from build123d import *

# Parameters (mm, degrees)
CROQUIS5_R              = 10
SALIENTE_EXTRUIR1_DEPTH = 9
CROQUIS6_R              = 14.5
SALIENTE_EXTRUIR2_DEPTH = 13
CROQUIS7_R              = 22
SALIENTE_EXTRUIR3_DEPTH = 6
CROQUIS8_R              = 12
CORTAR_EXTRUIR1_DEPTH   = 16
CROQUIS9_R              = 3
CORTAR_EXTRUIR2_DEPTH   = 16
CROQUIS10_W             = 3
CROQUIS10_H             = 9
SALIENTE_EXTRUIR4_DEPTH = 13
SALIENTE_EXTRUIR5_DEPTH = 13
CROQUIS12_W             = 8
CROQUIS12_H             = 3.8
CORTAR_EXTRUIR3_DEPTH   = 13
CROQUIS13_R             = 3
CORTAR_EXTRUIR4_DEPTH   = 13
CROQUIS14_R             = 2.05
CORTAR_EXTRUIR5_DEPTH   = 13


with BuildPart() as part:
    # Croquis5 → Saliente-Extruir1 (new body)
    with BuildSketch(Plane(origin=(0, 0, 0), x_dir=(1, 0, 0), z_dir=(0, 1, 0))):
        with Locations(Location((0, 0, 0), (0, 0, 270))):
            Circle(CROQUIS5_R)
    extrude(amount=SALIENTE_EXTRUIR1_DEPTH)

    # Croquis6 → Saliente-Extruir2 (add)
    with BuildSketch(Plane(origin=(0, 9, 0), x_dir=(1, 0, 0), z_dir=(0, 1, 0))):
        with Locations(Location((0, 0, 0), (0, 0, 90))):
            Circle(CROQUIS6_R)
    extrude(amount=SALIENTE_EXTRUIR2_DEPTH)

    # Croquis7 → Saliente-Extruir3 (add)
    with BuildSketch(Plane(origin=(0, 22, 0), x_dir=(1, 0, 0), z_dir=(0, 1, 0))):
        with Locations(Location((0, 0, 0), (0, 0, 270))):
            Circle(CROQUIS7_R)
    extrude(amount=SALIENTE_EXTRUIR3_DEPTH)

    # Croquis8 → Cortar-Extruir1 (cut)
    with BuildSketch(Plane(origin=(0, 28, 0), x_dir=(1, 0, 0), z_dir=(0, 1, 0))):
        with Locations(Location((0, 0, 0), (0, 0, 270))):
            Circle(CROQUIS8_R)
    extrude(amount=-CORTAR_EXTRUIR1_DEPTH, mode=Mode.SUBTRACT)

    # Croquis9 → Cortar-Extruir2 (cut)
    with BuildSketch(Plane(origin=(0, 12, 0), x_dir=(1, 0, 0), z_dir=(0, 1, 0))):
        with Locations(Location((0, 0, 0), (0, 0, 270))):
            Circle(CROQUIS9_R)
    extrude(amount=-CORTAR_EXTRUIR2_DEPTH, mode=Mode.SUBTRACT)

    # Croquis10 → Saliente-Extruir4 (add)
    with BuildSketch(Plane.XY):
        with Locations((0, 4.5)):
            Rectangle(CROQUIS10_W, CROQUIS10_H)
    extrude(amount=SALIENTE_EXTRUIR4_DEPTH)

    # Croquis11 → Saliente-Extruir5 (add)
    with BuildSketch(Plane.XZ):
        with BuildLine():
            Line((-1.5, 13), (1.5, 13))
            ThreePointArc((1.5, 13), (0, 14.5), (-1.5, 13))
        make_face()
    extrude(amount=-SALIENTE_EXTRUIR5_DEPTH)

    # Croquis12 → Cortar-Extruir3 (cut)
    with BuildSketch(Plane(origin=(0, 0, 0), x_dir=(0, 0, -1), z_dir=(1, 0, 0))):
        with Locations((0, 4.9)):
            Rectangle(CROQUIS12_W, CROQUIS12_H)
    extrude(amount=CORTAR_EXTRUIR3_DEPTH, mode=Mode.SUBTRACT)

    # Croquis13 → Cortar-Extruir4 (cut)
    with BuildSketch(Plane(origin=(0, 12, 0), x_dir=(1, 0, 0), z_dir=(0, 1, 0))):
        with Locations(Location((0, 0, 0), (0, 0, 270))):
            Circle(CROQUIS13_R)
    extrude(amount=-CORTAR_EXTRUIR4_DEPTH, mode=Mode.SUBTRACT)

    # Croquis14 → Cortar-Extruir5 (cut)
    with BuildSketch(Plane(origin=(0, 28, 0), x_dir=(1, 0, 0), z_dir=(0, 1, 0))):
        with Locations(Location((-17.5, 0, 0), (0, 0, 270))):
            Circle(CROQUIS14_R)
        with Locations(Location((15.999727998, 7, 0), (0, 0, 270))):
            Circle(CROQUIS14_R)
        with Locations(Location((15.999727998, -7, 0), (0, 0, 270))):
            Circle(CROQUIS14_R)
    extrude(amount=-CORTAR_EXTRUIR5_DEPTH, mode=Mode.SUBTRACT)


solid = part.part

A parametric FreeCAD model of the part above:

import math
import FreeCAD as App
import Part
import Sketcher
from FreeCAD import Vector


def add_polygon(sketch, points):
    """Adds a closed chain of lines whose ends are joined by coincident constraints."""
    first, n = sketch.GeometryCount, len(points)
    for a, b in zip(points, points[1:] + points[:1]):
        sketch.addGeometry(Part.LineSegment(App.Vector(*a, 0), App.Vector(*b, 0)), False)
    for i in range(n):
        sketch.addConstraint(Sketcher.Constraint("Coincident", first + i, 2, first + (i + 1) % n, 1))

doc = App.newDocument("Part")
body = doc.addObject("PartDesign::Body", "Body")

sketch1 = body.newObject("Sketcher::SketchObject", "Sketch")
sketch1.AttachmentSupport = (doc.getObject("XZ_Plane"), [""])
sketch1.MapMode = "FlatFace"
sketch1.addGeometry(Part.Circle(Vector(0, 0, 0), Vector(0, 0, 1), 10), False)
sketch1.addConstraint(Sketcher.Constraint("Coincident", 0, 3, -1, 1))
sketch1.addConstraint(Sketcher.Constraint("Diameter", 0, 20.0))
pad1 = body.newObject("PartDesign::Pad", "Pad")
pad1.Profile = sketch1
pad1.Length = 9
pad1.Reversed = True

sketch2 = body.newObject("Sketcher::SketchObject", "Sketch001")
sketch2.AttachmentSupport = (doc.getObject("XZ_Plane"), [""])
sketch2.MapMode = "FlatFace"
sketch2.AttachmentOffset = App.Placement(Vector(0, 0, -9), App.Rotation())
sketch2.addGeometry(Part.Circle(Vector(0, 0, 0), Vector(0, 0, 1), 14), False)
sketch2.addConstraint(Sketcher.Constraint("Coincident", 0, 3, -1, 1))
sketch2.addConstraint(Sketcher.Constraint("Diameter", 0, 29.0))
pad2 = body.newObject("PartDesign::Pad", "Pad001")
pad2.Profile = sketch2
pad2.Length = 13
pad2.Reversed = True

sketch3 = body.newObject("Sketcher::SketchObject", "Sketch002")
sketch3.AttachmentSupport = (doc.getObject("XZ_Plane"), [""])
sketch3.MapMode = "FlatFace"
sketch3.AttachmentOffset = App.Placement(Vector(0, 0, -22), App.Rotation())
sketch3.addGeometry(Part.Circle(Vector(0, 0, 0), Vector(0, 0, 1), 22), False)
sketch3.addConstraint(Sketcher.Constraint("Coincident", 0, 3, -1, 1))
sketch3.addConstraint(Sketcher.Constraint("Diameter", 0, 44.0))
pad3 = body.newObject("PartDesign::Pad", "Pad002")
pad3.Profile = sketch3
pad3.Length = 6
pad3.Reversed = True

sketch4 = body.newObject("Sketcher::SketchObject", "Sketch003")
sketch4.AttachmentSupport = (doc.getObject("XZ_Plane"), [""])
sketch4.MapMode = "FlatFace"
sketch4.AttachmentOffset = App.Placement(Vector(0, 0, -28), App.Rotation())
sketch4.addGeometry(Part.Circle(Vector(0, 0, 0), Vector(0, 0, 1), 12), False)
sketch4.addConstraint(Sketcher.Constraint("Coincident", 0, 3, -1, 1))
sketch4.addConstraint(Sketcher.Constraint("Diameter", 0, 24.0))
pocket1 = body.newObject("PartDesign::Pocket", "Pocket")
pocket1.Profile = sketch4
pocket1.Length = 16
pocket1.Reversed = True

sketch5 = body.newObject("Sketcher::SketchObject", "Sketch004")
sketch5.AttachmentSupport = (doc.getObject("XZ_Plane"), [""])
sketch5.MapMode = "FlatFace"
sketch5.AttachmentOffset = App.Placement(Vector(0, 0, -12), App.Rotation())
sketch5.addGeometry(Part.Circle(Vector(0, 0, 0), Vector(0, 0, 1), 3), False)
sketch5.addConstraint(Sketcher.Constraint("Coincident", 0, 3, -1, 1))
sketch5.addConstraint(Sketcher.Constraint("Diameter", 0, 6.0))
pocket2 = body.newObject("PartDesign::Pocket", "Pocket001")
pocket2.Profile = sketch5
pocket2.Length = 16
pocket2.Reversed = True

sketch6 = body.newObject("Sketcher::SketchObject", "Sketch005")
sketch6.AttachmentSupport = (doc.getObject("XY_Plane"), [""])
sketch6.MapMode = "FlatFace"
add_polygon(sketch6, [(-1.5, 9), (-1.5, 0), (1.5, 0), (1.5, 9)])
sketch6.addConstraint(Sketcher.Constraint("Vertical", 0))
sketch6.addConstraint(Sketcher.Constraint("Horizontal", 1))
sketch6.addConstraint(Sketcher.Constraint("Vertical", 2))
sketch6.addConstraint(Sketcher.Constraint("Horizontal", 3))
sketch6.addConstraint(Sketcher.Constraint("Symmetric", 0, 2, 1, 2, -1, 1))
sketch6.addConstraint(Sketcher.Constraint("DistanceX", 1, 1, 1, 2, 3.0))
sketch6.addConstraint(Sketcher.Constraint("DistanceY", 0, 2, 0, 1, 9.0))
pad4 = body.newObject("PartDesign::Pad", "Pad003")
pad4.Profile = sketch6
pad4.Length = 13

sketch7 = body.newObject("Sketcher::SketchObject", "Sketch006")
sketch7.AttachmentSupport = (doc.getObject("XZ_Plane"), [""])
sketch7.MapMode = "FlatFace"
sketch7.addGeometry(Part.LineSegment(Vector(-1.5, 13, 0), Vector(1.5, 13, 0)), False)
sketch7.addGeometry(Part.ArcOfCircle(Part.Circle(Vector(0, 13, 0), Vector(0, 0, 1), 1.5), math.radians(0), math.radians(180)), False)
sketch7.addConstraint(Sketcher.Constraint("Coincident", 0, 1, 1, 2))
sketch7.addConstraint(Sketcher.Constraint("Coincident", 1, 1, 0, 2))
sketch7.addConstraint(Sketcher.Constraint("Horizontal", 0))
sketch7.addConstraint(Sketcher.Constraint("PointOnObject", 1, 3, -2))
sketch7.addConstraint(Sketcher.Constraint("Horizontal", 1, 3, 0, 1))
sketch7.addConstraint(Sketcher.Constraint("Radius", 1, 1.5))
sketch7.addConstraint(Sketcher.Constraint("DistanceY", -1, 1, 1, 3, 13.0))
pad5 = body.newObject("PartDesign::Pad", "Pad004")
pad5.Profile = sketch7
pad5.Length = 13
pad5.Reversed = True

sketch8 = body.newObject("Sketcher::SketchObject", "Sketch007")
sketch8.AttachmentSupport = (doc.getObject("YZ_Plane"), [""])
sketch8.MapMode = "FlatFace"
add_polygon(sketch8, [(6.8, 4), (3, 4), (3, -4), (6.8, -4)])
sketch8.addConstraint(Sketcher.Constraint("Horizontal", 0))
sketch8.addConstraint(Sketcher.Constraint("Vertical", 1))
sketch8.addConstraint(Sketcher.Constraint("Horizontal", 2))
sketch8.addConstraint(Sketcher.Constraint("Vertical", 3))
sketch8.addConstraint(Sketcher.Constraint("DistanceY", 1, 2, 1, 1, 8.0))
sketch8.addConstraint(Sketcher.Constraint("DistanceX", 0, 2, 0, 1, 3.8))
sketch8.addConstraint(Sketcher.Constraint("DistanceX", -1, 1, 0, 2, 3.0))
sketch8.addConstraint(Sketcher.Constraint("DistanceY", -1, 1, 0, 2, 4.0))
pocket3 = body.newObject("PartDesign::Pocket", "Pocket002")
pocket3.Profile = sketch8
pocket3.Length = 13
pocket3.Reversed = True

sketch9 = body.newObject("Sketcher::SketchObject", "Sketch008")
sketch9.AttachmentSupport = (doc.getObject("XZ_Plane"), [""])
sketch9.MapMode = "FlatFace"
sketch9.AttachmentOffset = App.Placement(Vector(0, 0, -12), App.Rotation())
sketch9.addGeometry(Part.Circle(Vector(0, 0, 0), Vector(0, 0, 1), 3), False)
sketch9.addConstraint(Sketcher.Constraint("Coincident", 0, 3, -1, 1))
sketch9.addConstraint(Sketcher.Constraint("Diameter", 0, 6.0))
pocket4 = body.newObject("PartDesign::Pocket", "Pocket003")
pocket4.Profile = sketch9
pocket4.Length = 13
pocket4.Reversed = True

sketch10 = body.newObject("Sketcher::SketchObject", "Sketch009")
sketch10.AttachmentSupport = (doc.getObject("XZ_Plane"), [""])
sketch10.MapMode = "FlatFace"
sketch10.AttachmentOffset = App.Placement(Vector(0, 0, -28), App.Rotation())
sketch10.addGeometry(Part.Circle(Vector(-17.5, 0, 0), Vector(0, 0, 1), 2), False)
sketch10.addGeometry(Part.Circle(Vector(16, -7, 0), Vector(0, 0, 1), 2), False)
sketch10.addGeometry(Part.Circle(Vector(16, 7, 0), Vector(0, 0, 1), 2), False)
sketch10.addConstraint(Sketcher.Constraint("Equal", 0, 1))
sketch10.addConstraint(Sketcher.Constraint("Equal", 1, 2))
sketch10.addConstraint(Sketcher.Constraint("Symmetric", 1, 3, 2, 3, -1))
sketch10.addConstraint(Sketcher.Constraint("PointOnObject", 0, 3, -1))
sketch10.addConstraint(Sketcher.Constraint("Diameter", 0, 4.1))
sketch10.addConstraint(Sketcher.Constraint("DistanceY", 1, 3, -1, 1, 7.0))
sketch10.addConstraint(Sketcher.Constraint("DistanceX", 0, 3, -1, 1, 17.5))
sketch10.addConstraint(Sketcher.Constraint("DistanceX", -1, 1, 1, 3, 15.999728))
pocket5 = body.newObject("PartDesign::Pocket", "Pocket004")
pocket5.Profile = sketch10
pocket5.Length = 13
pocket5.Reversed = True

doc.recompute()
